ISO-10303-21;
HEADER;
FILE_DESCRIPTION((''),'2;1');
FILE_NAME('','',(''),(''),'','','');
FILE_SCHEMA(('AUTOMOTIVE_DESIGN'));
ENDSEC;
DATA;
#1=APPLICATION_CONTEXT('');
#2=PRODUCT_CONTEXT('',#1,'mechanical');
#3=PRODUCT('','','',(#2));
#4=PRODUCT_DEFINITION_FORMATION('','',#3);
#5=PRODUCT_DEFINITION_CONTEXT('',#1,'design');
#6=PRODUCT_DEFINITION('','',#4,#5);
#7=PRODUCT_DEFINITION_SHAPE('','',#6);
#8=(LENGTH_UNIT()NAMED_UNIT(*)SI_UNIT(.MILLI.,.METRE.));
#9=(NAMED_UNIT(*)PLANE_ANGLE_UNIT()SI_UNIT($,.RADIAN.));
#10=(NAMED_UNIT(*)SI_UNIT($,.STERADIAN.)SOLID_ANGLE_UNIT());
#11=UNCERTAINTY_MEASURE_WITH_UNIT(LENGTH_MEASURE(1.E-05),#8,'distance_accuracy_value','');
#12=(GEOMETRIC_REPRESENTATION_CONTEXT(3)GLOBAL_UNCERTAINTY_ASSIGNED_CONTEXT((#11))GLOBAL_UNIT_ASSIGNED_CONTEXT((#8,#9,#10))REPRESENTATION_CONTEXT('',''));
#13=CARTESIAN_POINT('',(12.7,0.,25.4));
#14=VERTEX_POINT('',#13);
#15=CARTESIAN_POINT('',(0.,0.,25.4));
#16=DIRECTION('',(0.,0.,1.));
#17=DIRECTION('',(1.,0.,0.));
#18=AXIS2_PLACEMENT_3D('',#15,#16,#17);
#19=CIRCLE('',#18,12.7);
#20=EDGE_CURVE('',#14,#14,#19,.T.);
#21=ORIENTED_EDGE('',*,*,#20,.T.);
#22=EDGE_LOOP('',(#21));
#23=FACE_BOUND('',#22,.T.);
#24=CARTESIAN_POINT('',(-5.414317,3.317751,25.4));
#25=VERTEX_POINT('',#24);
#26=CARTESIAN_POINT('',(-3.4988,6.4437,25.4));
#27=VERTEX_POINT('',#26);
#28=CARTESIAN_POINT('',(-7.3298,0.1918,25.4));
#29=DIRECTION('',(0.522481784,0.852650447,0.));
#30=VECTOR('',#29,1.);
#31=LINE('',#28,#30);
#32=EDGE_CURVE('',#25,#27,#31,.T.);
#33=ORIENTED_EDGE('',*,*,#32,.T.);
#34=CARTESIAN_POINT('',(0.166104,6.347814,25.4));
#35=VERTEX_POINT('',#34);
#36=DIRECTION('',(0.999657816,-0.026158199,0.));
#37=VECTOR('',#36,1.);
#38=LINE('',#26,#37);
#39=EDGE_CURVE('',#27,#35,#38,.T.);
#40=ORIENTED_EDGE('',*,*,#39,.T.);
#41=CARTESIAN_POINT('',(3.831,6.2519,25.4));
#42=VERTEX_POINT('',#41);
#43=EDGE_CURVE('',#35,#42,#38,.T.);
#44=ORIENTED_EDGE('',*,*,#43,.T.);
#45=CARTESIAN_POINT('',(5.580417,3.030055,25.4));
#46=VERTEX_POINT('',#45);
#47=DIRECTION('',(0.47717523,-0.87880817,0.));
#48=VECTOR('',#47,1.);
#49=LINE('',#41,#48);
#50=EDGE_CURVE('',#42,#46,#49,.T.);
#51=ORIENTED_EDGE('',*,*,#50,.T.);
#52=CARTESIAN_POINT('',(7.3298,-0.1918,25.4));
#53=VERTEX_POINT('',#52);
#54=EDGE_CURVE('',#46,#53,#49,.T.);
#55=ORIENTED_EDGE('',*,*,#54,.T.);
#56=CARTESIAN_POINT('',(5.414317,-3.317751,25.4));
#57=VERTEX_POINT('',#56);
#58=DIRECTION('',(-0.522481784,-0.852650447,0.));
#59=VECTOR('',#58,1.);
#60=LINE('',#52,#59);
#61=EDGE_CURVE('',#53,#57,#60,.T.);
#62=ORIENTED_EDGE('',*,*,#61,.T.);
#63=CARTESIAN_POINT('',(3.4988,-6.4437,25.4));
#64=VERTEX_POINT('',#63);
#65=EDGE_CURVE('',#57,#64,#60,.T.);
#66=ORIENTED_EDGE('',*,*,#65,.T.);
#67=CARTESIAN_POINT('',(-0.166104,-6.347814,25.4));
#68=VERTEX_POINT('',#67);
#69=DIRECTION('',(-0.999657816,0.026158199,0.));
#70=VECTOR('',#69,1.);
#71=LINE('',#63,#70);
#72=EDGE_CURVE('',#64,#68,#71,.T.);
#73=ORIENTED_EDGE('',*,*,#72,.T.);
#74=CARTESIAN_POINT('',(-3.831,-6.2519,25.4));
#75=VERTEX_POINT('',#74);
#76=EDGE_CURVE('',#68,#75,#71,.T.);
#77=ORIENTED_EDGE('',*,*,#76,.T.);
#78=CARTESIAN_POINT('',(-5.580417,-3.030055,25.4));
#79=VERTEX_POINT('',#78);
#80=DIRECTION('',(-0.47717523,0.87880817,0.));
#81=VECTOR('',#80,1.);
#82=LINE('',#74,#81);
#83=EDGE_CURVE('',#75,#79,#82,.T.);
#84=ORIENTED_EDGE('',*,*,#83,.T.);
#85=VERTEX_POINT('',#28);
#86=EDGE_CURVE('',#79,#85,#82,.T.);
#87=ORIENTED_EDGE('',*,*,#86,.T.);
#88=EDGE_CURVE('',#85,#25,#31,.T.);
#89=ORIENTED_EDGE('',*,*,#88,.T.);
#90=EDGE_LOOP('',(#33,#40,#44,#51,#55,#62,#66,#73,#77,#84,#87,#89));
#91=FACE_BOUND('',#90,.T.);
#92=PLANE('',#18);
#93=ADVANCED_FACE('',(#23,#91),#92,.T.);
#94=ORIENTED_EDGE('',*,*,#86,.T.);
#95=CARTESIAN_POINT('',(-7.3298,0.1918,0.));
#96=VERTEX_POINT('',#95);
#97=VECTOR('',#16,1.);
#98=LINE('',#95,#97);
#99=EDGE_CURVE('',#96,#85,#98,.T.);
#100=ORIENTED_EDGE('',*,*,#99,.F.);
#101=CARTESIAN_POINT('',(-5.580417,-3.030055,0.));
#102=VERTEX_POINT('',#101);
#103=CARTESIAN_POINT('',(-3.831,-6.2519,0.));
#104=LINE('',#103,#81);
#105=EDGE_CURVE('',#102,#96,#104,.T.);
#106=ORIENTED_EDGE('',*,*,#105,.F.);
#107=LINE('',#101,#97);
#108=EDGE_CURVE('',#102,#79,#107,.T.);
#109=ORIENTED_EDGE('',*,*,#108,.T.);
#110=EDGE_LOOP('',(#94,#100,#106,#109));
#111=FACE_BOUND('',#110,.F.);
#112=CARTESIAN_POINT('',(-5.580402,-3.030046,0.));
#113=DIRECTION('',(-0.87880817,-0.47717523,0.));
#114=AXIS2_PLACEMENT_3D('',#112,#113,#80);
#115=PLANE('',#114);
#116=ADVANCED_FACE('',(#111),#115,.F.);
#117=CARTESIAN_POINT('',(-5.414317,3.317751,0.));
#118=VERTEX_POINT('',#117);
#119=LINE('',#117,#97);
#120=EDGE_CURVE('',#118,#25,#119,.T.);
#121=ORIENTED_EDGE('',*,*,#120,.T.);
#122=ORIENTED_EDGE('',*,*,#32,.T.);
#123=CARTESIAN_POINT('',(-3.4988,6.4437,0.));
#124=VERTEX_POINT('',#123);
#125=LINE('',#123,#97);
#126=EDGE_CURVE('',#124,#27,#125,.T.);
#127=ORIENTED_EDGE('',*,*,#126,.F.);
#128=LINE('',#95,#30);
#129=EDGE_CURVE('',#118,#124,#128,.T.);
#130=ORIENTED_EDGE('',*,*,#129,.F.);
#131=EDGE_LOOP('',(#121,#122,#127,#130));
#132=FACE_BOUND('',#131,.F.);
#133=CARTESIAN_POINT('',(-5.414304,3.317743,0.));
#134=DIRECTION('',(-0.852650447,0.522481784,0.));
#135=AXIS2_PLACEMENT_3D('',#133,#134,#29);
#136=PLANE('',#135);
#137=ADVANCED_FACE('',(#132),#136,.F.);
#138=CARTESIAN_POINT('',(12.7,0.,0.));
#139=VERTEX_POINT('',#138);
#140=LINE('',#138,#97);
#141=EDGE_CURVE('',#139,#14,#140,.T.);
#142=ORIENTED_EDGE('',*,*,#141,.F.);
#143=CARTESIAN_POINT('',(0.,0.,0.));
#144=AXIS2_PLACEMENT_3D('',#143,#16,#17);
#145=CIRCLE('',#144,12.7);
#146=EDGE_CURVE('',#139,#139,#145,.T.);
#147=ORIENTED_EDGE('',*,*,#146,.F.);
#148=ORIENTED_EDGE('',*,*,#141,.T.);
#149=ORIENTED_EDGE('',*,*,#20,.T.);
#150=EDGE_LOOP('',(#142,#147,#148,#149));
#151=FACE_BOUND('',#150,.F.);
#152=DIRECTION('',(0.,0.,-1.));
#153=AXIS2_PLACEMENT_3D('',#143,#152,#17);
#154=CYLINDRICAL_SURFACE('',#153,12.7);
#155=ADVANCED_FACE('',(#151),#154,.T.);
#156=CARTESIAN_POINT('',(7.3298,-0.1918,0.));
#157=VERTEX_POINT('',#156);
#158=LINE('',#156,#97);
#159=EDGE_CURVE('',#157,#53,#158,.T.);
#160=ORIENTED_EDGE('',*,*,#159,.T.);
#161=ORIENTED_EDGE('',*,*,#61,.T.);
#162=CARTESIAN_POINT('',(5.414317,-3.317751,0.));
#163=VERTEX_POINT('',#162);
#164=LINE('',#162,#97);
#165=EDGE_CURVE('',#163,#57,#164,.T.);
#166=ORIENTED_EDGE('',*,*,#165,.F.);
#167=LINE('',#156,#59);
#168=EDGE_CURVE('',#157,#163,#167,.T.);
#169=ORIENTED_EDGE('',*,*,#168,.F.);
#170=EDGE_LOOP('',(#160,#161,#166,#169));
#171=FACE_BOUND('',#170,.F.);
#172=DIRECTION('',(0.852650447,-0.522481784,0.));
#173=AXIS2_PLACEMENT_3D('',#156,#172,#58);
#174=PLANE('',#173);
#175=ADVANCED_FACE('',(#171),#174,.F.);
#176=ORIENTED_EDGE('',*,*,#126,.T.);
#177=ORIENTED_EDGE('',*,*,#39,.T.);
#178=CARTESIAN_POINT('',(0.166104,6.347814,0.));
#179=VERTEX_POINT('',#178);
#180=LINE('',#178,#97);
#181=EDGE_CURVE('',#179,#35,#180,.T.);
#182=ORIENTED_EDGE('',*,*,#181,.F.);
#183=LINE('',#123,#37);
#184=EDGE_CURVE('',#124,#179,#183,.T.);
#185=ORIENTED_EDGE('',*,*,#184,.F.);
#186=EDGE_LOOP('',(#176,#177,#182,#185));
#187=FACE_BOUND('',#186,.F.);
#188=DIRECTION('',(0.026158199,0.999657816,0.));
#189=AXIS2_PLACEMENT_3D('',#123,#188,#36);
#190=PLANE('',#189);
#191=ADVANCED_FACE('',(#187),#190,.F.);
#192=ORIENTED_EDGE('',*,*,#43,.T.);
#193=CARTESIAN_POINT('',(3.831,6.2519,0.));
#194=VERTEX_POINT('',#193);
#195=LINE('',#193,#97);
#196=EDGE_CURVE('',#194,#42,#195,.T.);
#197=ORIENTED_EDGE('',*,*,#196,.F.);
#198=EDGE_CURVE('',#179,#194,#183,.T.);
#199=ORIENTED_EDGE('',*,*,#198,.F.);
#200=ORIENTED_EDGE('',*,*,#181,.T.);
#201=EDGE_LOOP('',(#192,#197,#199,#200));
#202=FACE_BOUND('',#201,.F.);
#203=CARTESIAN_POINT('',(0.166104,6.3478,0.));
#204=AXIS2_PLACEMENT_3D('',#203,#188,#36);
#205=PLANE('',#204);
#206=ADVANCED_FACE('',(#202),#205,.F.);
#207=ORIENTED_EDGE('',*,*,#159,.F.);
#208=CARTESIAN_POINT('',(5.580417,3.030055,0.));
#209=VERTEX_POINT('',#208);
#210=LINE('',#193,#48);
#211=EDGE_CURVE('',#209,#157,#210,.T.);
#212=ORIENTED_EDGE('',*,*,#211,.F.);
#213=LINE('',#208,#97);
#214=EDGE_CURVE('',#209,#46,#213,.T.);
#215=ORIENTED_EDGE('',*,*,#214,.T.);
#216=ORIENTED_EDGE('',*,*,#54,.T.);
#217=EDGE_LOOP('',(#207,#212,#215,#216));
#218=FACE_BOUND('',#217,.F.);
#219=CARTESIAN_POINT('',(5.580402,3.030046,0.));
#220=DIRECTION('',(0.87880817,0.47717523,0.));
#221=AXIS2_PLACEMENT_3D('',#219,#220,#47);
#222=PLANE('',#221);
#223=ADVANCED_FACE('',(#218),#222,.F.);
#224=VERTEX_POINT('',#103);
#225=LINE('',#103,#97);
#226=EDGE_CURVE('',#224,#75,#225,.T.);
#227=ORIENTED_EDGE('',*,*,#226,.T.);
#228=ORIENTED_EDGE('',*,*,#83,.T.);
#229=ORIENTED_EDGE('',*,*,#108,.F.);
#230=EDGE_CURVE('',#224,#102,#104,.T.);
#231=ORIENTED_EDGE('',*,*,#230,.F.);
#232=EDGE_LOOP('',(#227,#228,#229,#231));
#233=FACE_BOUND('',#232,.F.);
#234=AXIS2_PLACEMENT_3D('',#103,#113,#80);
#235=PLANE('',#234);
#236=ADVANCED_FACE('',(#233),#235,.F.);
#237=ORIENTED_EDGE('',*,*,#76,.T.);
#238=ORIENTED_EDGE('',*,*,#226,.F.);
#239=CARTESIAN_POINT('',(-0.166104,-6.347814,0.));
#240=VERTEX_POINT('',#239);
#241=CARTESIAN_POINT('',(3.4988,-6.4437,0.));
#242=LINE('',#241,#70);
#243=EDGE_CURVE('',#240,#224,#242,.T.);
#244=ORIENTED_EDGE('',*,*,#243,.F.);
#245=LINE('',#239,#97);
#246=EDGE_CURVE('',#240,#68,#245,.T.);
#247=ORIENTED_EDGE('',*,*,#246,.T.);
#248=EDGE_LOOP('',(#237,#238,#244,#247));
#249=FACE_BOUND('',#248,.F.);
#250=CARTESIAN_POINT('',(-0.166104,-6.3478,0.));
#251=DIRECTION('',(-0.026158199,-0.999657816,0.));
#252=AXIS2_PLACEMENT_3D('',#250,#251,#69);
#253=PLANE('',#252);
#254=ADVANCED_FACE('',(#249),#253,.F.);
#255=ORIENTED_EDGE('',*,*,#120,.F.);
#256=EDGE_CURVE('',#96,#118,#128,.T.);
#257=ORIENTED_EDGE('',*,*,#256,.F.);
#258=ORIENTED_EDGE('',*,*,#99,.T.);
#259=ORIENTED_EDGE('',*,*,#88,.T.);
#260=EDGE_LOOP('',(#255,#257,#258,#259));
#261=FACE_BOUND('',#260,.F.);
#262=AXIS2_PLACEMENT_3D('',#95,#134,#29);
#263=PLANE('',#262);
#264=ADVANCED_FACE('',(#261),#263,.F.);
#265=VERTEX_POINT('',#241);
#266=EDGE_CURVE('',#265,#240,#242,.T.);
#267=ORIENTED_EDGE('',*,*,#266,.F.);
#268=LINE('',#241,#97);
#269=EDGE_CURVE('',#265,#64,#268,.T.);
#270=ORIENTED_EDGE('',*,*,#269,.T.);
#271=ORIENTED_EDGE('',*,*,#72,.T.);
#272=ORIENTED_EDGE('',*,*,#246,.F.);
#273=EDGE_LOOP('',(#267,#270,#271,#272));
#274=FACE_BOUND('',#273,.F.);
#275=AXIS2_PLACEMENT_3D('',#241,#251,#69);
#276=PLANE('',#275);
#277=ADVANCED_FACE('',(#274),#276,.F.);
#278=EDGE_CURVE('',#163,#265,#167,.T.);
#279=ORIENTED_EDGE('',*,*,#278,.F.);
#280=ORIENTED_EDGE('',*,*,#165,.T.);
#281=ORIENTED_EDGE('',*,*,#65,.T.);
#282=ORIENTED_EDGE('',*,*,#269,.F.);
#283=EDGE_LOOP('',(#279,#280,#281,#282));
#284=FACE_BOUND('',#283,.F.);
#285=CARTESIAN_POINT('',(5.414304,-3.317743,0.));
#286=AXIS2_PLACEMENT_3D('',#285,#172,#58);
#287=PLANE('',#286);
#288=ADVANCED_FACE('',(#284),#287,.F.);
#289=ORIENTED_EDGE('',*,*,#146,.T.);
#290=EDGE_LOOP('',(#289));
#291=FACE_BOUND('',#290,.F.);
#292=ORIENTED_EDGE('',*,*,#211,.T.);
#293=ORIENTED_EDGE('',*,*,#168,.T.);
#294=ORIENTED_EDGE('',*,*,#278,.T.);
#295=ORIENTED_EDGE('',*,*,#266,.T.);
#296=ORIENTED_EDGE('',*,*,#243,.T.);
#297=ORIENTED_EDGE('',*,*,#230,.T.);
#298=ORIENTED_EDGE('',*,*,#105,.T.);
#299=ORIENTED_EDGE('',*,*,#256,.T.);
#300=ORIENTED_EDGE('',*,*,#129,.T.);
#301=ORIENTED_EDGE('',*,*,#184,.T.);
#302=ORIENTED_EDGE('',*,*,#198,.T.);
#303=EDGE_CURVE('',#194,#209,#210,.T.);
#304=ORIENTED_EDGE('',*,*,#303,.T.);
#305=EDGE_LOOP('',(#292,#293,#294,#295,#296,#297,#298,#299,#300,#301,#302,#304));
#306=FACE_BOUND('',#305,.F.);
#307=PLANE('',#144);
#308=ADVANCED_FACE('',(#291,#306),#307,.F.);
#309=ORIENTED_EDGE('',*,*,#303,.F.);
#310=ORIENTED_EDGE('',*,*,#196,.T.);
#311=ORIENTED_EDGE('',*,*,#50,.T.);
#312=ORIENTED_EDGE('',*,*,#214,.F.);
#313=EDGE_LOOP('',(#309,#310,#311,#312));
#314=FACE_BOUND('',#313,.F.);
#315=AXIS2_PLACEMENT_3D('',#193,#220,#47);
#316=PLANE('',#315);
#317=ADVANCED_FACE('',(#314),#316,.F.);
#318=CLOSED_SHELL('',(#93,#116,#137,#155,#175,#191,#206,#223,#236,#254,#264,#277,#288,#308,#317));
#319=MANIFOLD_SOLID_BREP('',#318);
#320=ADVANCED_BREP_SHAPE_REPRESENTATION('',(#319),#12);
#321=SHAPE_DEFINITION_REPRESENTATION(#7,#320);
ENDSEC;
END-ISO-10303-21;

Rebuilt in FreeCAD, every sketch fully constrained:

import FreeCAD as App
import Part
import Sketcher
from FreeCAD import Vector
Q = App.Units.Quantity


def add_polygon(sketch, points):
    """Adds a closed chain of lines whose ends are joined by coincident constraints."""
    first, n = sketch.GeometryCount, len(points)
    for a, b in zip(points, points[1:] + points[:1]):
        sketch.addGeometry(Part.LineSegment(App.Vector(*a, 0), App.Vector(*b, 0)), False)
    for i in range(n):
        sketch.addConstraint(Sketcher.Constraint("Coincident", first + i, 2, first + (i + 1) % n, 1))

doc = App.newDocument("Part")
body = doc.addObject("PartDesign::Body", "Body")

sketch1 = body.newObject("Sketcher::SketchObject", "Sketch")
sketch1.AttachmentSupport = (doc.getObject("XY_Plane"), [""])
sketch1.MapMode = "FlatFace"
sketch1.addGeometry(Part.Circle(Vector(0, 0, 0), Vector(0, 0, 1), 13), False)
add_polygon(sketch1, [(4, 6), (7, 0), (3, -6), (-4, -6), (-7, 0), (-3, 6)])
sketch1.addConstraint([
    Sketcher.Constraint("Coincident", 0, 3, -1, 1),
    Sketcher.Constraint("Symmetric", 1, 2, 4, 2, -1, 1),
    Sketcher.Constraint("Symmetric", 2, 2, 5, 2, -1, 1),
    Sketcher.Constraint("Symmetric", 3, 2, 6, 2, -1, 1),
    Sketcher.Constraint("Equal", 1, 2),
    Sketcher.Constraint("Equal", 2, 3),
    Sketcher.Constraint("Diameter", 0, Q("1 in")),
    Sketcher.Constraint("Angle", 1, Q("-61.499 deg")),
    Sketcher.Constraint("Angle", 2, Q("-121.4989 deg")),
    Sketcher.Constraint("Angle", 3, Q("178.501 deg")),
    Sketcher.Constraint("DistanceY", 2, 2, -1, 1, Q("0.2537 in")),
])
pad1 = body.newObject("PartDesign::Pad", "Pad")
pad1.Profile = sketch1
pad1.Length = Q("1 in")

doc.recompute()
